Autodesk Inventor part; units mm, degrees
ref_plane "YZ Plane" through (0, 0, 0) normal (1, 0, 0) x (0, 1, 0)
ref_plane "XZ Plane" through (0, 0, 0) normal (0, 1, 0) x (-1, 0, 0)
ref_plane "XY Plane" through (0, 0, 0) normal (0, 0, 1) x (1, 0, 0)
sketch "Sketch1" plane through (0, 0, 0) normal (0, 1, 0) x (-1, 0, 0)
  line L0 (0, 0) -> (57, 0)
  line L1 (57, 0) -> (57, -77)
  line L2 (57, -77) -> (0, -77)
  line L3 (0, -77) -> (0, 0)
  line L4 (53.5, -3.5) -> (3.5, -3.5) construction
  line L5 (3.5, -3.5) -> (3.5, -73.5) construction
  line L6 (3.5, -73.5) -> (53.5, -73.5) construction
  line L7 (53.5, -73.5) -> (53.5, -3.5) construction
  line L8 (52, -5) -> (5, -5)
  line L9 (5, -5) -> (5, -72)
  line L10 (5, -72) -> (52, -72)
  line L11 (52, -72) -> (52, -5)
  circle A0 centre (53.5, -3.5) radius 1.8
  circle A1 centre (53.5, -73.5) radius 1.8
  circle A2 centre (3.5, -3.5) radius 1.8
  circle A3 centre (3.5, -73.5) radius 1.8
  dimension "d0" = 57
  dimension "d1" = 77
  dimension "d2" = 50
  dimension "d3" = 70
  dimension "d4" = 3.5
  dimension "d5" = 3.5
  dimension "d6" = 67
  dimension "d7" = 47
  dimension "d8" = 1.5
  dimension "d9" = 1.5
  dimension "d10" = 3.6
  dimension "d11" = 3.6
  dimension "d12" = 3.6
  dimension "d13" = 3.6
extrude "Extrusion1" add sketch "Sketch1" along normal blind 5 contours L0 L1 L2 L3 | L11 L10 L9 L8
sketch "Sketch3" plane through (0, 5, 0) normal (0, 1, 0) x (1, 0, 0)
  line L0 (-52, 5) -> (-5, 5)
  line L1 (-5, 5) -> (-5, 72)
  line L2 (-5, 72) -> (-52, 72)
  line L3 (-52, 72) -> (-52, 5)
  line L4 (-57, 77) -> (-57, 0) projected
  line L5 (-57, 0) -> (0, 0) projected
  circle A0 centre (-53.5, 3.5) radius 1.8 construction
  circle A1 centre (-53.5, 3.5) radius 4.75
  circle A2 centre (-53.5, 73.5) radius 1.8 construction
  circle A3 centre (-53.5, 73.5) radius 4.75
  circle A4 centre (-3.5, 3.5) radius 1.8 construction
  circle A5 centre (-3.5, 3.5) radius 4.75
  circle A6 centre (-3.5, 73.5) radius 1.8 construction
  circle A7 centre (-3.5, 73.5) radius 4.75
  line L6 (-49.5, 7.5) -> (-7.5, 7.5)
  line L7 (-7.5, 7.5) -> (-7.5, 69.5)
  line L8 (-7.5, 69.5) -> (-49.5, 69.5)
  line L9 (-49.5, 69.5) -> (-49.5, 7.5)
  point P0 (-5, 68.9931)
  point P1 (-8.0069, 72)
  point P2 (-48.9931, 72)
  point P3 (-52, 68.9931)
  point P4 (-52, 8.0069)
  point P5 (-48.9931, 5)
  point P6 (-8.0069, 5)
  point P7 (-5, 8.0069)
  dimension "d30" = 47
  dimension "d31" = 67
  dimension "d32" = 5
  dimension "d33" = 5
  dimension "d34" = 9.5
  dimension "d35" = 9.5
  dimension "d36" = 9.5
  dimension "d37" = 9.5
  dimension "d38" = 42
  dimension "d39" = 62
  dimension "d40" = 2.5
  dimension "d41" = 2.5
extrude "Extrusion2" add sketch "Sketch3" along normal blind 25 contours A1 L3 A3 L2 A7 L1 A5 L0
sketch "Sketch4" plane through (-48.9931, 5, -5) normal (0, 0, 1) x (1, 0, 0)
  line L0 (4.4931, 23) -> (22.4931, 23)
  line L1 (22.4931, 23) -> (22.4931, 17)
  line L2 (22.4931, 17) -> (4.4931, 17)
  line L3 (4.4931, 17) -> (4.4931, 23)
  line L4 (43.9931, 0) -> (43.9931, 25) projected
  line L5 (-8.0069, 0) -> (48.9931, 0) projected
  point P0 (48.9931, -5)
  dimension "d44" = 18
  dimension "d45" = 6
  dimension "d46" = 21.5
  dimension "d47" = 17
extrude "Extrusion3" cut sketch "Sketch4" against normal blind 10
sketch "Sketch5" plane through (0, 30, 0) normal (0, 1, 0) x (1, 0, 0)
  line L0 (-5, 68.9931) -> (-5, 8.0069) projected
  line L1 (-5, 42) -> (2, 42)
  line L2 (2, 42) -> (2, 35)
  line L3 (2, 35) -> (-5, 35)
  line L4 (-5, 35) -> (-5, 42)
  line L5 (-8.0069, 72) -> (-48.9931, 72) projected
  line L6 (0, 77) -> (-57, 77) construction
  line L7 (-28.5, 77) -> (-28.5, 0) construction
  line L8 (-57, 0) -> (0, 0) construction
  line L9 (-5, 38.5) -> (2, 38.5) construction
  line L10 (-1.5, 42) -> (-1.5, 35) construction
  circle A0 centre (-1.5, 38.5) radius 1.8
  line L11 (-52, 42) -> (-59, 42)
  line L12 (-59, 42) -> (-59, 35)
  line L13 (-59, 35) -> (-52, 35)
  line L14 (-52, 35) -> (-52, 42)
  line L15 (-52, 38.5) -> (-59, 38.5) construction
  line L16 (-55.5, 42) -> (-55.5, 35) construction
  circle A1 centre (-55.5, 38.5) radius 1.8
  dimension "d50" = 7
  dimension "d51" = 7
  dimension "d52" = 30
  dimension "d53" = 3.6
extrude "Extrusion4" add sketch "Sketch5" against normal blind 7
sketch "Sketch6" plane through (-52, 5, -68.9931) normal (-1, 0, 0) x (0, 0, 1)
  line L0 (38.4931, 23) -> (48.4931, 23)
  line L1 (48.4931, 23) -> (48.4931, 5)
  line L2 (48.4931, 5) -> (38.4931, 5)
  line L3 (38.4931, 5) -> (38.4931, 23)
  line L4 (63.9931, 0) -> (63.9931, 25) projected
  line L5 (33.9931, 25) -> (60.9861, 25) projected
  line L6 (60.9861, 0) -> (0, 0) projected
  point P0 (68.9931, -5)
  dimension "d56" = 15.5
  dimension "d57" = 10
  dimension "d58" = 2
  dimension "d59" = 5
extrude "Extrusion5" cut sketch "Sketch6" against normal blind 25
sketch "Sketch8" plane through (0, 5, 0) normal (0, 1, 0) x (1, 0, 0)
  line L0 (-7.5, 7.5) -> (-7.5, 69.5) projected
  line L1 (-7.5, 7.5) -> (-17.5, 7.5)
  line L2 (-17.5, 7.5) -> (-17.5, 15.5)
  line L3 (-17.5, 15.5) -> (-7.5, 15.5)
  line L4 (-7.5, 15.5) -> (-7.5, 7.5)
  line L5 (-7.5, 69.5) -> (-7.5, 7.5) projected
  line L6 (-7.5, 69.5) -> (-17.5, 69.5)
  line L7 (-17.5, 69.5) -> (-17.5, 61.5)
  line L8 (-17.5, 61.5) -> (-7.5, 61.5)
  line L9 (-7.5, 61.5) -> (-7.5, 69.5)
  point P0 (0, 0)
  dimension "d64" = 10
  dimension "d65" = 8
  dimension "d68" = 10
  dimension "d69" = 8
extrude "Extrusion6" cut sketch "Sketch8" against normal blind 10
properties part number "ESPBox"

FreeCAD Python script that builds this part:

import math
import FreeCAD as App
import Part
import Sketcher

V = App.Vector


def add_polygon(sketch, points):
    """Adds a closed chain of lines whose ends are joined by coincident constraints."""
    first, n = sketch.GeometryCount, len(points)
    for a, b in zip(points, points[1:] + points[:1]):
        sketch.addGeometry(Part.LineSegment(App.Vector(*a, 0), App.Vector(*b, 0)), False)
    for i in range(n):
        sketch.addConstraint(Sketcher.Constraint("Coincident", first + i, 2, first + (i + 1) % n, 1))

doc = App.newDocument("Part")
body = doc.addObject("PartDesign::Body", "Body")

# Sketch on XZ plane
sketch1 = doc.addObject("Sketcher::SketchObject", "Sketch")
body.addObject(sketch1)
sketch1.AttachmentSupport = (doc.XZ_Plane, [""])
sketch1.MapMode = "FlatFace"
add_polygon(sketch1, [(-57, 0), (0, 0), (0, -77), (-57, -77)])  # lines 0-3
sketch1.addGeometry(Part.Circle(V(-3.5, -73.5, 0), V(0, 0, 1), 1.8), False)  # 4
sketch1.addGeometry(Part.Circle(V(-53.5, -73.5, 0), V(0, 0, 1), 1.8), False)  # 5
sketch1.addGeometry(Part.Circle(V(-3.5, -3.5, 0), V(0, 0, 1), 1.8), False)  # 6
sketch1.addGeometry(Part.Circle(V(-53.5, -3.5, 0), V(0, 0, 1), 1.8), False)  # 7
sketch1.addConstraint([
    Sketcher.Constraint("Horizontal", 0),
    Sketcher.Constraint("Vertical", 1),
    Sketcher.Constraint("Horizontal", 2),
    Sketcher.Constraint("Vertical", 3),
    Sketcher.Constraint("Coincident", 0, 2, -1, 1),
    Sketcher.Constraint("Equal", 4, 5),
    Sketcher.Constraint("Equal", 5, 6),
    Sketcher.Constraint("Equal", 6, 7),
    Sketcher.Constraint("Horizontal", 4, 3, 5, 3),
    Sketcher.Constraint("Horizontal", 6, 3, 7, 3),
    Sketcher.Constraint("Vertical", 4, 3, 6, 3),
    Sketcher.Constraint("Vertical", 5, 3, 7, 3),
    Sketcher.Constraint("Diameter", 4, 3.6),
    Sketcher.Constraint("DistanceX", 0, 1, 0, 2, 57.0),
    Sketcher.Constraint("DistanceY", 1, 2, 1, 1, 77.0),
    Sketcher.Constraint("DistanceX", 5, 3, 4, 3, 50.0),
    Sketcher.Constraint("DistanceY", 4, 3, 6, 3, 70.0),
    Sketcher.Constraint("DistanceX", 4, 3, -1, 1, 3.5),
    Sketcher.Constraint("DistanceY", 6, 3, -1, 1, 3.5),
])
pad1 = doc.addObject("PartDesign::Pad", "Pad")
body.addObject(pad1)
pad1.Profile = sketch1
pad1.Length = 5
pad1.Reversed = True

# Sketch on XZ plane
sketch2 = doc.addObject("Sketcher::SketchObject", "Sketch001")
body.addObject(sketch2)
sketch2.AttachmentSupport = (doc.XZ_Plane, [""])
sketch2.MapMode = "FlatFace"
sketch2.AttachmentOffset = App.Placement(V(0, 0, -5), App.Rotation())
sketch2.addGeometry(Part.ArcOfCircle(Part.Circle(V(-53.5, -3.5, 0), V(0, 0, 1), 4.8), math.radians(-72), math.radians(-18)), False)  # 0
sketch2.addGeometry(Part.LineSegment(V(-49, -5, 0), V(-8, -5, 0)), False)  # 1
sketch2.addGeometry(Part.ArcOfCircle(Part.Circle(V(-3.5, -3.5, 0), V(0, 0, 1), 4.8), math.radians(-162), math.radians(-108)), False)  # 2
sketch2.addGeometry(Part.LineSegment(V(-5, -8, 0), V(-5, -69, 0)), False)  # 3
sketch2.addGeometry(Part.ArcOfCircle(Part.Circle(V(-3.5, -73.5, 0), V(0, 0, 1), 4.8), math.radians(108), math.radians(162)), False)  # 4
sketch2.addGeometry(Part.LineSegment(V(-8, -72, 0), V(-49, -72, 0)), False)  # 5
sketch2.addGeometry(Part.ArcOfCircle(Part.Circle(V(-53.5, -73.5, 0), V(0, 0, 1), 4.8), math.radians(18), math.radians(72)), False)  # 6
sketch2.addGeometry(Part.LineSegment(V(-52, -69, 0), V(-52, -8, 0)), False)  # 7
add_polygon(sketch2, [(-7.5, -7.5), (-49.5, -7.5), (-49.5, -69.5), (-7.5, -69.5)])  # lines 8-11
sketch2.addConstraint([
    Sketcher.Constraint("Coincident", 0, 2, 1, 1),
    Sketcher.Constraint("Coincident", 1, 2, 2, 1),
    Sketcher.Constraint("Coincident", 2, 2, 3, 1),
    Sketcher.Constraint("Coincident", 3, 2, 4, 1),
    Sketcher.Constraint("Coincident", 4, 2, 5, 1),
    Sketcher.Constraint("Coincident", 5, 2, 6, 1),
    Sketcher.Constraint("Coincident", 6, 2, 7, 1),
    Sketcher.Constraint("Coincident", 7, 2, 0, 1),
    Sketcher.Constraint("Horizontal", 1),
    Sketcher.Constraint("Vertical", 3),
    Sketcher.Constraint("Horizontal", 5),
    Sketcher.Constraint("Vertical", 7),
    Sketcher.Constraint("Horizontal", 8),
    Sketcher.Constraint("Vertical", 9),
    Sketcher.Constraint("Horizontal", 10),
    Sketcher.Constraint("Vertical", 11),
    Sketcher.Constraint("Equal", 0, 2),
    Sketcher.Constraint("Equal", 2, 4),
    Sketcher.Constraint("Equal", 4, 6),
    Sketcher.Constraint("Horizontal", 0, 3, 2, 3),
    Sketcher.Constraint("Horizontal", 4, 3, 6, 3),
    Sketcher.Constraint("Horizontal", 3, 2, 6, 2),
    Sketcher.Constraint("Horizontal", 2, 2, 7, 2),
    Sketcher.Constraint("Vertical", 2, 3, 4, 3),
    Sketcher.Constraint("Vertical", 1, 2, 4, 2),
    Sketcher.Constraint("DistanceX", 8, 2, 8, 1, 42.0),
    Sketcher.Constraint("DistanceY", 9, 2, 9, 1, 62.0),
    Sketcher.Constraint("Radius", 0, 4.75),
    Sketcher.Constraint("DistanceY", 0, 2, -1, 1, 5.0),
    Sketcher.Constraint("DistanceX", 2, 2, -1, 1, 5.0),
    Sketcher.Constraint("DistanceY", 4, 2, 1, 2, 67.0),
    Sketcher.Constraint("DistanceX", 6, 2, 3, 2, 47.0),
    Sketcher.Constraint("DistanceY", 8, 2, 0, 2, 2.5),
    Sketcher.Constraint("DistanceX", 7, 2, 8, 2, 2.5),
    Sketcher.Constraint("DistanceX", 0, 3, 2, 3, 50.0),
    Sketcher.Constraint("DistanceY", 4, 3, 2, 3, 70.0),
])
pad2 = doc.addObject("PartDesign::Pad", "Pad001")
body.addObject(pad2)
pad2.Profile = sketch2
pad2.Length = 25
pad2.Reversed = True

# Sketch on XY plane
sketch3 = doc.addObject("Sketcher::SketchObject", "Sketch002")
body.addObject(sketch3)
sketch3.AttachmentSupport = (doc.XY_Plane, [""])
sketch3.MapMode = "FlatFace"
sketch3.AttachmentOffset = App.Placement(V(0, 0, -5), App.Rotation())
add_polygon(sketch3, [(-26, 28), (-44, 28), (-44, 22), (-26, 22)])  # lines 0-3
sketch3.addConstraint([
    Sketcher.Constraint("Horizontal", 0),
    Sketcher.Constraint("Vertical", 1),
    Sketcher.Constraint("Horizontal", 2),
    Sketcher.Constraint("Vertical", 3),
    Sketcher.Constraint("DistanceX", 0, 2, 0, 1, 18.0),
    Sketcher.Constraint("DistanceY", 1, 2, 1, 1, 6.0),
    Sketcher.Constraint("DistanceY", -1, 1, 0, 2, 28.0),
    Sketcher.Constraint("DistanceX", 0, 2, -1, 1, 44.5),
])
pocket1 = doc.addObject("PartDesign::Pocket", "Pocket")
body.addObject(pocket1)
pocket1.Profile = sketch3
pocket1.Length = 10

# Sketch on XZ plane
sketch4 = doc.addObject("Sketcher::SketchObject", "Sketch003")
body.addObject(sketch4)
sketch4.AttachmentSupport = (doc.XZ_Plane, [""])
sketch4.MapMode = "FlatFace"
sketch4.AttachmentOffset = App.Placement(V(0, 0, -30), App.Rotation())
add_polygon(sketch4, [(2, -42), (-5, -42), (-5, -35), (2, -35)])  # lines 0-3
sketch4.addGeometry(Part.Circle(V(-1.5, -38.5, 0), V(0, 0, 1), 1.8), False)  # 4
add_polygon(sketch4, [(-52, -35), (-52, -42), (-59, -42), (-59, -35)])  # lines 5-8
sketch4.addGeometry(Part.Circle(V(-55.5, -38.5, 0), V(0, 0, 1), 1.8), False)  # 9
sketch4.addConstraint([
    Sketcher.Constraint("Horizontal", 0),
    Sketcher.Constraint("Vertical", 1),
    Sketcher.Constraint("Horizontal", 2),
    Sketcher.Constraint("Vertical", 3),
    Sketcher.Constraint("Vertical", 5),
    Sketcher.Constraint("Horizontal", 6),
    Sketcher.Constraint("Vertical", 7),
    Sketcher.Constraint("Horizontal", 8),
    Sketcher.Constraint("Equal", 4, 9),
    Sketcher.Constraint("Horizontal", 4, 3, 9, 3),
    Sketcher.Constraint("Horizontal", 3, 2, 5, 2),
    Sketcher.Constraint("Horizontal", 2, 2, 7, 2),
    Sketcher.Constraint("Equal", 2, 6),
    Sketcher.Constraint("Equal", 8, 1),
    Sketcher.Constraint("Diameter", 4, 3.6),
    Sketcher.Constraint("DistanceX", 0, 2, 0, 1, 7.0),
    Sketcher.Constraint("DistanceX", 0, 2, -1, 1, 5.0),
    Sketcher.Constraint("DistanceY", 0, 2, -1, 1, 42.0),
    Sketcher.Constraint("DistanceX", 5, 2, -1, 1, 52.0),
    Sketcher.Constraint("DistanceX", 9, 3, 4, 3, 54.0),
    Sketcher.Constraint("DistanceX", 4, 3, -1, 1, 1.5),
    Sketcher.Constraint("DistanceY", 4, 3, -1, 1, 38.5),
])
pad3 = doc.addObject("PartDesign::Pad", "Pad002")
body.addObject(pad3)
pad3.Profile = sketch4
pad3.Length = 7

# Sketch on YZ plane
sketch5 = doc.addObject("Sketcher::SketchObject", "Sketch004")
body.addObject(sketch5)
sketch5.AttachmentSupport = (doc.YZ_Plane, [""])
sketch5.MapMode = "FlatFace"
sketch5.AttachmentOffset = App.Placement(V(0, 0, -52), App.Rotation())
add_polygon(sketch5, [(28, -20), (28, -30), (10, -30), (10, -20)])  # lines 0-3
sketch5.addConstraint([
    Sketcher.Constraint("Vertical", 0),
    Sketcher.Constraint("Horizontal", 1),
    Sketcher.Constraint("Vertical", 2),
    Sketcher.Constraint("Horizontal", 3),
    Sketcher.Constraint("DistanceY", 0, 2, 0, 1, 10.0),
    Sketcher.Constraint("DistanceX", -1, 1, 1, 2, 10.0),
    Sketcher.Constraint("DistanceX", 1, 2, 1, 1, 18.0),
    Sketcher.Constraint("DistanceY", 0, 2, -1, 1, 30.5),
])
pocket2 = doc.addObject("PartDesign::Pocket", "Pocket001")
body.addObject(pocket2)
pocket2.Profile = sketch5
pocket2.Length = 25
pocket2.Reversed = True

# Sketch on XZ plane
sketch6 = doc.addObject("Sketcher::SketchObject", "Sketch005")
body.addObject(sketch6)
sketch6.AttachmentSupport = (doc.XZ_Plane, [""])
sketch6.MapMode = "FlatFace"
sketch6.AttachmentOffset = App.Placement(V(0, 0, -5), App.Rotation())
add_polygon(sketch6, [(-18, -8), (-8, -8), (-8, -16), (-18, -16)])  # lines 0-3
add_polygon(sketch6, [(-18, -62), (-8, -62), (-8, -70), (-18, -70)])  # lines 4-7
sketch6.addConstraint([
    Sketcher.Constraint("Horizontal", 0),
    Sketcher.Constraint("Vertical", 1),
    Sketcher.Constraint("Horizontal", 2),
    Sketcher.Constraint("Vertical", 3),
    Sketcher.Constraint("Horizontal", 4),
    Sketcher.Constraint("Vertical", 5),
    Sketcher.Constraint("Horizontal", 6),
    Sketcher.Constraint("Vertical", 7),
    Sketcher.Constraint("Vertical", 1, 2, 4, 2),
    Sketcher.Constraint("Vertical", 3, 2, 6, 2),
    Sketcher.Constraint("Equal", 3, 5),
    Sketcher.Constraint("DistanceX", 0, 1, 0, 2, 10.0),
    Sketcher.Constraint("DistanceY", 1, 2, 1, 1, 8.0),
    Sketcher.Constraint("DistanceY", 4, 2, 1, 2, 46.0),
    Sketcher.Constraint("DistanceX", 0, 2, -1, 1, 7.5),
    Sketcher.Constraint("DistanceY", 0, 2, -1, 1, 7.5),
])
pocket3 = doc.addObject("PartDesign::Pocket", "Pocket002")
body.addObject(pocket3)
pocket3.Profile = sketch6
pocket3.Length = 10
pocket3.Reversed = True

doc.recompute()
